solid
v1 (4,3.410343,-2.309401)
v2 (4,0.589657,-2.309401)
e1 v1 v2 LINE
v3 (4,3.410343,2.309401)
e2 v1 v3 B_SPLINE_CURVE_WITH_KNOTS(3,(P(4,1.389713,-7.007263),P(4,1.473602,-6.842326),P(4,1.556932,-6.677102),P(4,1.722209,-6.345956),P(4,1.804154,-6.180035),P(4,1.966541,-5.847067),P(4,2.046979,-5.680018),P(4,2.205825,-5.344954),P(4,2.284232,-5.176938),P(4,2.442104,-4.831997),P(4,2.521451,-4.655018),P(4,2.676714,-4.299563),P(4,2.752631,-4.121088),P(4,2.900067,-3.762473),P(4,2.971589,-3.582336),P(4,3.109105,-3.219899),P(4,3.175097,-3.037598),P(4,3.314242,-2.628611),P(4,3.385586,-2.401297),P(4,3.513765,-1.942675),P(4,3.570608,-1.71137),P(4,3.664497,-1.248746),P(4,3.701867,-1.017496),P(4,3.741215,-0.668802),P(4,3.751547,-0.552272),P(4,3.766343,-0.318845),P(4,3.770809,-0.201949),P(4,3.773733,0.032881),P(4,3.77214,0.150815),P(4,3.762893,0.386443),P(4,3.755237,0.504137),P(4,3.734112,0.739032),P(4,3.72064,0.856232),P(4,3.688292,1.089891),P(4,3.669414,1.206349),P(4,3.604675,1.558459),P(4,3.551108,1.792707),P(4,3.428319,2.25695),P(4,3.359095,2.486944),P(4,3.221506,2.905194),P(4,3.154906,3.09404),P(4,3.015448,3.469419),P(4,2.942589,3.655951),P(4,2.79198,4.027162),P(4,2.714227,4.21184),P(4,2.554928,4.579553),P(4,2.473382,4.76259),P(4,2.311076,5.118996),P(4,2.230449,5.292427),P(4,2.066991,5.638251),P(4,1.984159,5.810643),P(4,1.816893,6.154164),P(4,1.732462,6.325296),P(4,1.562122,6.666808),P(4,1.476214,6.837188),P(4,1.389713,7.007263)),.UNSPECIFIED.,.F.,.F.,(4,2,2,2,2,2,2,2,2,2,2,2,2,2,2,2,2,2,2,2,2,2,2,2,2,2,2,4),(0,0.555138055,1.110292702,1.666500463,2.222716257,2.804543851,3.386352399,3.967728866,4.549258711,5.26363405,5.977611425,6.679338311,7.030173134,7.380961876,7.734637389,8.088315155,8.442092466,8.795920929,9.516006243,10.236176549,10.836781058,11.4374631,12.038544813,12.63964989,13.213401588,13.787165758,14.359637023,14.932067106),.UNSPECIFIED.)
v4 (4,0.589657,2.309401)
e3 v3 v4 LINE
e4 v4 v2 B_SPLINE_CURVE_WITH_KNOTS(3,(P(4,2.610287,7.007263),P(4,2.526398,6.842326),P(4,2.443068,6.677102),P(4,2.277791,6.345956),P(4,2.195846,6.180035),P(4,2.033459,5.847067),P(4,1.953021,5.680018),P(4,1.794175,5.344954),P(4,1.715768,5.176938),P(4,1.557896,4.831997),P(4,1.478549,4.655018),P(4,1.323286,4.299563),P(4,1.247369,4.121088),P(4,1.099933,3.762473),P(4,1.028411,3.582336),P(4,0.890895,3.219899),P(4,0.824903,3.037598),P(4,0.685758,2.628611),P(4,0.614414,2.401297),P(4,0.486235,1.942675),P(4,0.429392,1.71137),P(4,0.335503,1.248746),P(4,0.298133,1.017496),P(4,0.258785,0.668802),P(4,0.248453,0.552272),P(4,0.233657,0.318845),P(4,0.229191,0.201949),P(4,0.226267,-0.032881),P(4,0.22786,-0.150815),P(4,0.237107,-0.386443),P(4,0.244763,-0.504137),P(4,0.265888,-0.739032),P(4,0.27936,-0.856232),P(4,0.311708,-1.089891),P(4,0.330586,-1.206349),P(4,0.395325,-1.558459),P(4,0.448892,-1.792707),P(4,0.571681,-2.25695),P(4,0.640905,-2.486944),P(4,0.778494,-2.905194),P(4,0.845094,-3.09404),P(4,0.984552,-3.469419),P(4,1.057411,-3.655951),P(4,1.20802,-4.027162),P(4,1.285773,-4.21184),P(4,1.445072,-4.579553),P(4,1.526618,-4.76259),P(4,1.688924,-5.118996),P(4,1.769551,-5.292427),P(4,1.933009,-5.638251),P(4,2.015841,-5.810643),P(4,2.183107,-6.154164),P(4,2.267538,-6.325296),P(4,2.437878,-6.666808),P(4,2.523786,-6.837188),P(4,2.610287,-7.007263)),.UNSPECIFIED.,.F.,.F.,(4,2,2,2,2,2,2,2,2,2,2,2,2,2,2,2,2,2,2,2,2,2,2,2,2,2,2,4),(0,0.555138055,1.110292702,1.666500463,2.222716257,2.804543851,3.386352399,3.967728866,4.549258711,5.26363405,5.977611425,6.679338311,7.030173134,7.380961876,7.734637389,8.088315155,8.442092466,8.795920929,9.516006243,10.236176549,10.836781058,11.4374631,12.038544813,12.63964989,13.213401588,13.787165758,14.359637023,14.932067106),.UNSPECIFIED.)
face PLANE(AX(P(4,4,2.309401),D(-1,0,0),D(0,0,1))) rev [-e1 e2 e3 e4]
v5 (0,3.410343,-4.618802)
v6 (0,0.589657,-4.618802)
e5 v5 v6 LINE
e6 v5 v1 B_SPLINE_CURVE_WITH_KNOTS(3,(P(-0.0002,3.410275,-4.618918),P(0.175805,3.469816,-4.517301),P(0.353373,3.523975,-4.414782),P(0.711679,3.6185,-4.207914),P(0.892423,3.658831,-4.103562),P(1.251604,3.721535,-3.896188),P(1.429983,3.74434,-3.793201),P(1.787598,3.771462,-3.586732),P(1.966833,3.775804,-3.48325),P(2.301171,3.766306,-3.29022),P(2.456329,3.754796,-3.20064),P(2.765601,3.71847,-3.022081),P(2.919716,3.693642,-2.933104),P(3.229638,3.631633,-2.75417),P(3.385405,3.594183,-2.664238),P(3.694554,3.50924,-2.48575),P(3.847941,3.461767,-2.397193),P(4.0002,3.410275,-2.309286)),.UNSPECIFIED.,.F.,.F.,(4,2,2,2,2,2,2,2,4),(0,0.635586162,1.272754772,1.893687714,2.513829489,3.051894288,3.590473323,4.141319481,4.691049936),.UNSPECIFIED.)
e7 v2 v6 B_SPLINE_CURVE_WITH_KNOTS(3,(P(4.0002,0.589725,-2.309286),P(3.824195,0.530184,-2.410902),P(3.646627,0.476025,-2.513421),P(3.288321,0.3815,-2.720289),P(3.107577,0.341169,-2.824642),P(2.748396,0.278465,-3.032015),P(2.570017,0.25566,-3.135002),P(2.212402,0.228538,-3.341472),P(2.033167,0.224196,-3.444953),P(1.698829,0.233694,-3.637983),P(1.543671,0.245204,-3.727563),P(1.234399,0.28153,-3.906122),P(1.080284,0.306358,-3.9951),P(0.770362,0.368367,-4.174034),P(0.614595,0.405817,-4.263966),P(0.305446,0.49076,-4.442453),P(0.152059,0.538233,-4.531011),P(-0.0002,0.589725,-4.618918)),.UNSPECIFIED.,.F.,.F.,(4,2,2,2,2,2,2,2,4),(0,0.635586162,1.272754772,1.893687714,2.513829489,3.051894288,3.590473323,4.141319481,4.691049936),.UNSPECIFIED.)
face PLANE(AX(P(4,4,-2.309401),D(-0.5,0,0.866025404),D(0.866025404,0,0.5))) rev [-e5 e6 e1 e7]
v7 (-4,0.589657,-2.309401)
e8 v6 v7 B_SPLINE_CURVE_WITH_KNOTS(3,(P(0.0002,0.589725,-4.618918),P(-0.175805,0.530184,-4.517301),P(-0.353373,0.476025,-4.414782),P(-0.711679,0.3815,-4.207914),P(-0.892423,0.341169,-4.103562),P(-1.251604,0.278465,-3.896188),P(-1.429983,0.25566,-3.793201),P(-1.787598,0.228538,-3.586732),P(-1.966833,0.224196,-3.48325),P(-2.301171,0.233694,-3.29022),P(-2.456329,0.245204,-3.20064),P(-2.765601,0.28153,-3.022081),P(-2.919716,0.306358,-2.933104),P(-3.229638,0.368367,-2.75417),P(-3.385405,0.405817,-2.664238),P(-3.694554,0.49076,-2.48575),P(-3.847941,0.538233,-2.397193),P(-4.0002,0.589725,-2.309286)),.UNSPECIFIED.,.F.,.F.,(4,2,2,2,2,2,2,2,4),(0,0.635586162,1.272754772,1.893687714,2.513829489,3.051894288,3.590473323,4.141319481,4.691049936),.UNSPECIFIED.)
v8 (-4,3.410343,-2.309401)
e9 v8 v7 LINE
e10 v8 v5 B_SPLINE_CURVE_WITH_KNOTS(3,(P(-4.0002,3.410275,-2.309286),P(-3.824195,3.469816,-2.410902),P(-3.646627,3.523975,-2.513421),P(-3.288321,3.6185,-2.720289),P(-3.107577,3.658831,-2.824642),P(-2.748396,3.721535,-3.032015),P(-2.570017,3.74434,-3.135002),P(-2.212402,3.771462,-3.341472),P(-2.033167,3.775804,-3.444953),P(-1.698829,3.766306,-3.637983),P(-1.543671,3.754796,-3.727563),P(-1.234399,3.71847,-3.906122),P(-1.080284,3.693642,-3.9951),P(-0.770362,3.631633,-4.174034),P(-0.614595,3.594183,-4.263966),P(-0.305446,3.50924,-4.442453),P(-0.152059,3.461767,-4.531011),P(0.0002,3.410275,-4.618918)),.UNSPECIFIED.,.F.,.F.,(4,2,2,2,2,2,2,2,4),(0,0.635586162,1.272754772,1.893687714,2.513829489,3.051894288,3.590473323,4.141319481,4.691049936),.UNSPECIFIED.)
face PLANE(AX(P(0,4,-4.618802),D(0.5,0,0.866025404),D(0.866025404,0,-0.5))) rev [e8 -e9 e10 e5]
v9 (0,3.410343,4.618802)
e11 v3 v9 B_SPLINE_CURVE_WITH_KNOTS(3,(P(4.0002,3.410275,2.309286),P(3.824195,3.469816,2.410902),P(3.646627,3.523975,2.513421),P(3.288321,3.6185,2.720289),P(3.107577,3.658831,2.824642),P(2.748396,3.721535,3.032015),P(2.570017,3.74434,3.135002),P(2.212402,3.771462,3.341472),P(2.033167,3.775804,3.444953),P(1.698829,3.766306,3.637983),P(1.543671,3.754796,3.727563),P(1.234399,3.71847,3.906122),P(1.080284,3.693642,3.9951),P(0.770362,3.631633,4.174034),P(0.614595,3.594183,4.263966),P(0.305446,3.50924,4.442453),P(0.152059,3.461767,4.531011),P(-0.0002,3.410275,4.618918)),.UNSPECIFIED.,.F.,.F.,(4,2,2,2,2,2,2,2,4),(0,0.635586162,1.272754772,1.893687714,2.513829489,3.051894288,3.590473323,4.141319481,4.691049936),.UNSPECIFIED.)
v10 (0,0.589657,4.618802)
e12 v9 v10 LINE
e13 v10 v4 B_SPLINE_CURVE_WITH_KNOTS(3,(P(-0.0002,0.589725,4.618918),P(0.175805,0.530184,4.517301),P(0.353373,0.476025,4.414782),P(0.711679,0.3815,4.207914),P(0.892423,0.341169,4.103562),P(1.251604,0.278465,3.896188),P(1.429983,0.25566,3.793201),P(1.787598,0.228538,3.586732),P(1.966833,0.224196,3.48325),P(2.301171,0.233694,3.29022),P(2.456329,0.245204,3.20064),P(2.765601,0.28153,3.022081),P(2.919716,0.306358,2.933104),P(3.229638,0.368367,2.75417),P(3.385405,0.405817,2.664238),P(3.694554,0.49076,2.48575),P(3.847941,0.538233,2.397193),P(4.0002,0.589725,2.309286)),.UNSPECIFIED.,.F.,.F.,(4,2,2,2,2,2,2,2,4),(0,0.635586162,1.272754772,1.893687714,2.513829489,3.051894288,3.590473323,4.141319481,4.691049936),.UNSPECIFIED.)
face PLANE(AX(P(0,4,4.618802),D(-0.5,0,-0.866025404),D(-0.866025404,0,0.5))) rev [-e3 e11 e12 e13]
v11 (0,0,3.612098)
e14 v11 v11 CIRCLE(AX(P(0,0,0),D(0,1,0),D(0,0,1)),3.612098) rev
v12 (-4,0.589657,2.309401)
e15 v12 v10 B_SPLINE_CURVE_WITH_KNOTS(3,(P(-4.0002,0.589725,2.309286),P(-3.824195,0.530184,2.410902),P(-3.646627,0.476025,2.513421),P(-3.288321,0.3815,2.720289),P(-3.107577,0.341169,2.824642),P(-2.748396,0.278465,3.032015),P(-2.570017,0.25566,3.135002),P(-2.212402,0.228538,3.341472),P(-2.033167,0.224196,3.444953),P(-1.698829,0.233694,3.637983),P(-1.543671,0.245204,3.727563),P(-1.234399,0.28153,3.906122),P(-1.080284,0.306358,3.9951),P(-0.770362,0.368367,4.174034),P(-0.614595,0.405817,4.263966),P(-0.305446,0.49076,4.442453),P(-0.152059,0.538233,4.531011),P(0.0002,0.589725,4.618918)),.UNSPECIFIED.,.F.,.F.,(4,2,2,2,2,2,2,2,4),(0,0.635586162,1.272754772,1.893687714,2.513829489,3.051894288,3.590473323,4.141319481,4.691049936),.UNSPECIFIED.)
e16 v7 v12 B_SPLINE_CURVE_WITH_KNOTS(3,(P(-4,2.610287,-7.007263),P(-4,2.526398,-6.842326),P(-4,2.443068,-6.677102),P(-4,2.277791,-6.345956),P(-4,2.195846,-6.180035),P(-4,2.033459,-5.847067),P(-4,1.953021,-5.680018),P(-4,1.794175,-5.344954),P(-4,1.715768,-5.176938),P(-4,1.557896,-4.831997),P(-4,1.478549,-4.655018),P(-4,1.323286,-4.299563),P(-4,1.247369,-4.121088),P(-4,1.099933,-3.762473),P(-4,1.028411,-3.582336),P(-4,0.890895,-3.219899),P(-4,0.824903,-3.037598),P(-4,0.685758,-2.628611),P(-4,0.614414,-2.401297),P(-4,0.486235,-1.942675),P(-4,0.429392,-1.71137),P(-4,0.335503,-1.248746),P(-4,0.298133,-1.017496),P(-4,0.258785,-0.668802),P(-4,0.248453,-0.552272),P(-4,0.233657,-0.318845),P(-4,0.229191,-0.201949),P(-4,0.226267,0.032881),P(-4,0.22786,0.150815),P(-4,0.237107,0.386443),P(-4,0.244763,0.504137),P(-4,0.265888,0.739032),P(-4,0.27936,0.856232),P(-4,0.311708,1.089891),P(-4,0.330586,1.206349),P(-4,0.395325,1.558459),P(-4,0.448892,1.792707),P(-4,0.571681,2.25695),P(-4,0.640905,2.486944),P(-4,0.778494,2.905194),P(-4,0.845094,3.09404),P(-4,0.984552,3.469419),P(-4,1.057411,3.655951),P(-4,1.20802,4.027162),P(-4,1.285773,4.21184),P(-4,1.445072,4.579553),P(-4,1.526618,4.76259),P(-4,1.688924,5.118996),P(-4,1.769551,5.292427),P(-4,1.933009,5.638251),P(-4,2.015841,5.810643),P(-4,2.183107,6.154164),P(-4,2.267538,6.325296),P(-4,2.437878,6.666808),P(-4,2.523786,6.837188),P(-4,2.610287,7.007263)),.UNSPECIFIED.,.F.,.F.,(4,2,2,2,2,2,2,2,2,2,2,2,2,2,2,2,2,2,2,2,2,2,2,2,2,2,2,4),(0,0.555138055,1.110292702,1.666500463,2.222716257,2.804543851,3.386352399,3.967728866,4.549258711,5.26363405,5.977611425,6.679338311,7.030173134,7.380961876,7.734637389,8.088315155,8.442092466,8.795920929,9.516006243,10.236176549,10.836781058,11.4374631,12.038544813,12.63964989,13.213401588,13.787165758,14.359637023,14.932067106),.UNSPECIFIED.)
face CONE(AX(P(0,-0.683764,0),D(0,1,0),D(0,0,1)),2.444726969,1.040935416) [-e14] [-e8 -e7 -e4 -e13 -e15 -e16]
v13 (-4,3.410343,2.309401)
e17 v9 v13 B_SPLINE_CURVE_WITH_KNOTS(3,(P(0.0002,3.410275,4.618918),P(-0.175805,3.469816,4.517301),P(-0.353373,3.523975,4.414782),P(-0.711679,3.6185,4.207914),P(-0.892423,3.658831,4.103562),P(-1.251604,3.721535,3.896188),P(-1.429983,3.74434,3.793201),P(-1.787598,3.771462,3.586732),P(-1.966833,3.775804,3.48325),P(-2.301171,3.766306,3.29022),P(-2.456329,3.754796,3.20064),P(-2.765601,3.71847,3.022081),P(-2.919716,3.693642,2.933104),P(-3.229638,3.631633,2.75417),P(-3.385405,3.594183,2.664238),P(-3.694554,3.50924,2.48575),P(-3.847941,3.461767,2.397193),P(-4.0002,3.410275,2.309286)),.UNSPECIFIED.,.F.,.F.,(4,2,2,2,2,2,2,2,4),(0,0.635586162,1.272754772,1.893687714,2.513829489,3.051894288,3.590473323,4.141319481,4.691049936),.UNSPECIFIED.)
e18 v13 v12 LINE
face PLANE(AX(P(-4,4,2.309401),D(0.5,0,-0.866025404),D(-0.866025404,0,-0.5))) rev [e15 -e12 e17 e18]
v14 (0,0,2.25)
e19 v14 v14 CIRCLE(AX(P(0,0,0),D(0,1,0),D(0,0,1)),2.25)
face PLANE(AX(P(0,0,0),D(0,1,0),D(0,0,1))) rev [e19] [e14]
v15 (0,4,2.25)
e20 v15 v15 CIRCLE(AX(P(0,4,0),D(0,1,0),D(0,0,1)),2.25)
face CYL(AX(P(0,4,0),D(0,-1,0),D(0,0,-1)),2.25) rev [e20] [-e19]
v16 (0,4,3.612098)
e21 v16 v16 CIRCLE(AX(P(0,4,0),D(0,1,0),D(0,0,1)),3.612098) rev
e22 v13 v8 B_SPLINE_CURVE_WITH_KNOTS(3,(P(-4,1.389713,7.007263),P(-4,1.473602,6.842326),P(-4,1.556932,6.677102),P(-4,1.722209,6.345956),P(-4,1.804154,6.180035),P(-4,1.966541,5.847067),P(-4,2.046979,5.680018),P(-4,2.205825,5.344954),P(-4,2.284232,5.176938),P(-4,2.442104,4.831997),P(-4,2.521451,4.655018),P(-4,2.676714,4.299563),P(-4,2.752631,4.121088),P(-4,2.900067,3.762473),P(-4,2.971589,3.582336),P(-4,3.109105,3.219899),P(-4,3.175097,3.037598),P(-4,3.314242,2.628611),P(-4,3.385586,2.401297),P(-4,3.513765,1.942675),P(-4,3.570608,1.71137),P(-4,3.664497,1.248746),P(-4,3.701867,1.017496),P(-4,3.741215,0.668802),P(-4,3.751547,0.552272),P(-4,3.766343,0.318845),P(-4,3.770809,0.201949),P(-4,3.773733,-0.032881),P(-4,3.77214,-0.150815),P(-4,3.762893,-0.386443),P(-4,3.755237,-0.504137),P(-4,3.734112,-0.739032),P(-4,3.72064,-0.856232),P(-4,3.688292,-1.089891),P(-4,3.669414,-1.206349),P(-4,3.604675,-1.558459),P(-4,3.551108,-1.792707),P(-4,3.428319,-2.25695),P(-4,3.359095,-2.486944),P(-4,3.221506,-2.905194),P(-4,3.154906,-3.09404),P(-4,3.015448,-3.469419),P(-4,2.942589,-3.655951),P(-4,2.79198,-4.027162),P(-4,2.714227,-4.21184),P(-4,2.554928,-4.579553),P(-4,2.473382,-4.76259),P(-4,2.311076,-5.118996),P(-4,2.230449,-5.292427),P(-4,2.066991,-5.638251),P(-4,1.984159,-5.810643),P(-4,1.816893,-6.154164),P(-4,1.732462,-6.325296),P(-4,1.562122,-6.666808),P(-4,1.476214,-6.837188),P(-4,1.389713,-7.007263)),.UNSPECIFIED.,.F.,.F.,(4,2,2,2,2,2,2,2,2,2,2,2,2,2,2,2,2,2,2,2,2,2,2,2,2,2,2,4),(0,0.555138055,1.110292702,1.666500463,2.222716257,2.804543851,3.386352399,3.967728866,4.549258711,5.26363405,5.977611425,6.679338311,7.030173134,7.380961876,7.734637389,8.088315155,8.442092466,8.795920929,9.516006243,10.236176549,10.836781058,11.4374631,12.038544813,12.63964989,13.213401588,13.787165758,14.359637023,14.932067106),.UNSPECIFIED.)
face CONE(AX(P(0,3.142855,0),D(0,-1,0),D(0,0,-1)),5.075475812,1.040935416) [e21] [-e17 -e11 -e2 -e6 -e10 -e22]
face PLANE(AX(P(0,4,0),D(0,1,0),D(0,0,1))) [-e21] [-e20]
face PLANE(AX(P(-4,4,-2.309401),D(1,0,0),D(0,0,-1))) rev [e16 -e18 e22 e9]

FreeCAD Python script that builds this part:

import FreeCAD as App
import Part
import Sketcher
Q = App.Units.Quantity


def add_polygon(sketch, points):
    """Adds a closed chain of lines whose ends are joined by coincident constraints."""
    first, n = sketch.GeometryCount, len(points)
    for a, b in zip(points, points[1:] + points[:1]):
        sketch.addGeometry(Part.LineSegment(App.Vector(*a, 0), App.Vector(*b, 0)), False)
    for i in range(n):
        sketch.addConstraint(Sketcher.Constraint("Coincident", first + i, 2, first + (i + 1) % n, 1))

doc = App.newDocument("Part")
body = doc.addObject("PartDesign::Body", "Body")

# Sketch on XZ plane
sketch1 = body.newObject("Sketcher::SketchObject", "Sketch")
sketch1.AttachmentSupport = (doc.getObject("XZ_Plane"), [""])
sketch1.MapMode = "FlatFace"
add_polygon(sketch1, [(0, -4.6), (-4, -2.3), (-4, 2.3), (0, 4.6), (4, 2.3), (4, -2.3)])  # lines 0-5
sketch1.addGeometry(Part.Circle(App.Vector(0, 0, 0), App.Vector(0, 0, 1), 2.2), False)  # 6
sketch1.addConstraint(Sketcher.Constraint("Vertical", 1))
sketch1.addConstraint(Sketcher.Constraint("Vertical", 4))
sketch1.addConstraint(Sketcher.Constraint("Coincident", 6, 3, -1, 1))
sketch1.addConstraint(Sketcher.Constraint("Symmetric", 0, 2, 3, 2, -1, 1))
sketch1.addConstraint(Sketcher.Constraint("Symmetric", 2, 2, 5, 2, -1, 1))
sketch1.addConstraint(Sketcher.Constraint("PointOnObject", 2, 2, -2))
sketch1.addConstraint(Sketcher.Constraint("Parallel", 2, 5))
sketch1.addConstraint(Sketcher.Constraint("Horizontal", 1, 2, 3, 2))
sketch1.addConstraint(Sketcher.Constraint("Diameter", 6, 4.5))
sketch1.addConstraint(Sketcher.Constraint("Angle", 0, Q("150 deg")))
sketch1.addConstraint(Sketcher.Constraint("DistanceX", 0, 2, -1, 1, 4.0))
sketch1.addConstraint(Sketcher.Constraint("DistanceY", 0, 2, -1, 1, 2.309401))
pad1 = body.newObject("PartDesign::Pad", "Pad")
pad1.Profile = sketch1
pad1.Length = 4
pad1.Reversed = True

# Sketch on YZ plane
sketch2 = body.newObject("Sketcher::SketchObject", "Sketch001")
sketch2.AttachmentSupport = (doc.getObject("YZ_Plane"), [""])
sketch2.MapMode = "FlatFace"
add_polygon(sketch2, [(3.1, 5.1), (4.7, 2.4), (4.8, 4.7)])  # lines 0-2
add_polygon(sketch2, [(0.9, 5.1), (-0.8, 4.7), (-0.7, 2.4)])  # lines 3-5
sketch2.addConstraint(Sketcher.Constraint("Horizontal", 1, 2, 3, 2))
sketch2.addConstraint(Sketcher.Constraint("Horizontal", 0, 2, 4, 2))
sketch2.addConstraint(Sketcher.Constraint("Horizontal", 2, 2, 5, 2))
sketch2.addConstraint(Sketcher.Constraint("Equal", 2, 3))
sketch2.addConstraint(Sketcher.Constraint("Equal", 1, 4))
sketch2.addConstraint(Sketcher.Constraint("Distance", 1, 2.2922))
sketch2.addConstraint(Sketcher.Constraint("DistanceX", 2, 2, 1, 2, 1.695698))
sketch2.addConstraint(Sketcher.Constraint("Distance", 0, 3.04881))
sketch2.addConstraint(Sketcher.Constraint("DistanceX", 0, 2, 1, 2, 0.154789))
sketch2.addConstraint(Sketcher.Constraint("DistanceX", 3, 2, 2, 2, 3.981409))
sketch2.addConstraint(Sketcher.Constraint("DistanceX", -1, 1, 0, 2, 4.683764))
sketch2.addConstraint(Sketcher.Constraint("DistanceY", -1, 1, 0, 2, 2.444727))
groove = body.newObject("PartDesign::Groove", "Groove")
groove.Profile = sketch2
groove.ReferenceAxis = (sketch2, ["H_Axis"])
groove.Angle = 360

doc.recompute()
